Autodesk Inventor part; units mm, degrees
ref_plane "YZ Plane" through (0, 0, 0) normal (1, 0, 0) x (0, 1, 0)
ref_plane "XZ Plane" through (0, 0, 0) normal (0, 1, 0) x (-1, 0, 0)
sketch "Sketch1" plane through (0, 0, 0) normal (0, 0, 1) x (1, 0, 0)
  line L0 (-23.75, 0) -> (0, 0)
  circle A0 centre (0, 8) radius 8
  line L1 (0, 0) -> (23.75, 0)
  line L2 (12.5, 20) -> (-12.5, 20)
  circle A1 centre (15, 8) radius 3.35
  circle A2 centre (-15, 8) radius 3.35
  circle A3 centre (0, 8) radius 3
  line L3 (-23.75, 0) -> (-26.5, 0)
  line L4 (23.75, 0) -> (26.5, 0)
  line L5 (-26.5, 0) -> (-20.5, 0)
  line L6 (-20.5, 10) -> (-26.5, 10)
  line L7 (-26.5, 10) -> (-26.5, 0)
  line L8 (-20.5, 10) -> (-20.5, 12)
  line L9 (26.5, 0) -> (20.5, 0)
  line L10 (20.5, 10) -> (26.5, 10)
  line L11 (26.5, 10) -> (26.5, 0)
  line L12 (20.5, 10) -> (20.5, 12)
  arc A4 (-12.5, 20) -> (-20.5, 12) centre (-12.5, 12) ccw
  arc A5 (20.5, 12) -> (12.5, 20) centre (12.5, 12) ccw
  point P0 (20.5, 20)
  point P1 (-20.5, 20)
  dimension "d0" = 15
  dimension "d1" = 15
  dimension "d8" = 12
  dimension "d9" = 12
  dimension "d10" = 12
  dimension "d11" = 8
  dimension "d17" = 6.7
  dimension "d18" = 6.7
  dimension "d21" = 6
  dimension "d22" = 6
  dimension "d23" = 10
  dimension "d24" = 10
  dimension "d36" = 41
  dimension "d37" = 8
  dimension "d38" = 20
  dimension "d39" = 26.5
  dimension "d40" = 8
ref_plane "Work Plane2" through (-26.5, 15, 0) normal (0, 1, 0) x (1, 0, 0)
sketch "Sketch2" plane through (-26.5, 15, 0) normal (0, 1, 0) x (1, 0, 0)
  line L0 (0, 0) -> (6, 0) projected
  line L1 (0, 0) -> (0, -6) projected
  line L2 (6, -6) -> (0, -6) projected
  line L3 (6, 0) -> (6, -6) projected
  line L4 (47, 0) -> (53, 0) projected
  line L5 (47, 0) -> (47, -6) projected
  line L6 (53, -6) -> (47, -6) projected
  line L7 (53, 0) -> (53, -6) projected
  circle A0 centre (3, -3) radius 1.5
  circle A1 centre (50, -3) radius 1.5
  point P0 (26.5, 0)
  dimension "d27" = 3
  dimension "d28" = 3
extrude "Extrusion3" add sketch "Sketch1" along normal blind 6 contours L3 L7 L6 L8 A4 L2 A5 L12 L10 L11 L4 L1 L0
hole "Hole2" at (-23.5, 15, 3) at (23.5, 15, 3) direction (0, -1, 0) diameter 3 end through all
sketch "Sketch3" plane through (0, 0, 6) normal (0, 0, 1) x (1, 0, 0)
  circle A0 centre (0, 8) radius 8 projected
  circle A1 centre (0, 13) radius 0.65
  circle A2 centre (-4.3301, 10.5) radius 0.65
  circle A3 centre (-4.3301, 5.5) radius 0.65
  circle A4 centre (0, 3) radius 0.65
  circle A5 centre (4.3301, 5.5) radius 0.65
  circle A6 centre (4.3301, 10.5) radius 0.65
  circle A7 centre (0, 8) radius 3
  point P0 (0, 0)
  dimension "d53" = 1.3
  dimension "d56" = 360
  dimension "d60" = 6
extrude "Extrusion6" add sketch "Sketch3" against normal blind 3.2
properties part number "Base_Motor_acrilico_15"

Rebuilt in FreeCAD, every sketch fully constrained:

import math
import FreeCAD as App
import Part
import Sketcher

V = App.Vector

doc = App.newDocument("Part")
body = doc.addObject("PartDesign::Body", "Body")

# Sketch on XY plane
sketch1 = body.newObject("Sketcher::SketchObject", "Sketch")
sketch1.AttachmentSupport = (doc.getObject("XY_Plane"), [""])
sketch1.MapMode = "FlatFace"
sketch1.addGeometry([
    Part.LineSegment(V(-26.5, 0, 0), V(0, 0, 0)),  # 0
    Part.LineSegment(V(0, 0, 0), V(26.5, 0, 0)),  # 1
    Part.LineSegment(V(26.5, 0, 0), V(26.5, 10, 0)),  # 2
    Part.LineSegment(V(26.5, 10, 0), V(20.5, 10, 0)),  # 3
    Part.LineSegment(V(20.5, 10, 0), V(20.5, 12, 0)),  # 4
    Part.ArcOfCircle(Part.Circle(V(12.5, 12, 0), V(0, 0, 1), 8), math.radians(0), math.radians(90)),  # 5
    Part.LineSegment(V(12.5, 20, 0), V(-12.5, 20, 0)),  # 6
    Part.ArcOfCircle(Part.Circle(V(-12.5, 12, 0), V(0, 0, 1), 8), math.radians(90), math.radians(180)),  # 7
    Part.LineSegment(V(-20.5, 12, 0), V(-20.5, 10, 0)),  # 8
    Part.LineSegment(V(-20.5, 10, 0), V(-26.5, 10, 0)),  # 9
    Part.LineSegment(V(-26.5, 10, 0), V(-26.5, 0, 0)),  # 10
    Part.Circle(V(-15, 8, 0), V(0, 0, 1), 3.4),  # 11
    Part.Circle(V(0, 8, 0), V(0, 0, 1), 8),  # 12
    Part.Circle(V(15, 8, 0), V(0, 0, 1), 3.4),  # 13
], False)
sketch1.addConstraint([
    Sketcher.Constraint("Coincident", 0, 2, 1, 1),
    Sketcher.Constraint("Coincident", 1, 2, 2, 1),
    Sketcher.Constraint("Coincident", 2, 2, 3, 1),
    Sketcher.Constraint("Coincident", 3, 2, 4, 1),
    Sketcher.Constraint("Tangent", 4, 2, 5, 1),
    Sketcher.Constraint("Tangent", 5, 2, 6, 1),
    Sketcher.Constraint("Tangent", 6, 2, 7, 1),
    Sketcher.Constraint("Tangent", 7, 2, 8, 1),
    Sketcher.Constraint("Coincident", 8, 2, 9, 1),
    Sketcher.Constraint("Coincident", 9, 2, 10, 1),
    Sketcher.Constraint("Coincident", 10, 2, 0, 1),
    Sketcher.Constraint("Horizontal", 0),
    Sketcher.Constraint("Horizontal", 1),
    Sketcher.Constraint("Vertical", 2),
    Sketcher.Constraint("Horizontal", 3),
    Sketcher.Constraint("Vertical", 4),
    Sketcher.Constraint("Horizontal", 6),
    Sketcher.Constraint("Vertical", 8),
    Sketcher.Constraint("Horizontal", 9),
    Sketcher.Constraint("Vertical", 10),
    Sketcher.Constraint("Coincident", 0, 2, -1, 1),
    Sketcher.Constraint("Equal", 5, 7),
    Sketcher.Constraint("Equal", 7, 12),
    Sketcher.Constraint("Equal", 11, 13),
    Sketcher.Constraint("Symmetric", 11, 3, 13, 3, -2),
    Sketcher.Constraint("Symmetric", 3, 2, 8, 2, -2),
    Sketcher.Constraint("PointOnObject", 12, 3, -2),
    Sketcher.Constraint("Horizontal", 11, 3, 12, 3),
    Sketcher.Constraint("Equal", 0, 1),
    Sketcher.Constraint("Diameter", 12, 16.0),
    Sketcher.Constraint("Diameter", 11, 6.7),
    Sketcher.Constraint("DistanceX", 3, 2, 3, 1, 6.0),
    Sketcher.Constraint("DistanceY", 2, 1, 2, 2, 10.0),
    Sketcher.Constraint("DistanceX", 0, 1, 0, 2, 26.5),
    Sketcher.Constraint("DistanceY", -1, 1, 5, 3, 12.0),
    Sketcher.Constraint("DistanceX", 11, 3, -1, 1, 15.0),
    Sketcher.Constraint("DistanceY", -1, 1, 11, 3, 8.0),
])
pad1 = body.newObject("PartDesign::Pad", "Pad")
pad1.Profile = sketch1
pad1.Length = 6

# Sketch on XZ plane
sketch2 = body.newObject("Sketcher::SketchObject", "Sketch001")
sketch2.AttachmentSupport = (doc.getObject("XZ_Plane"), [""])
sketch2.MapMode = "FlatFace"
sketch2.AttachmentOffset = App.Placement(V(0, 0, -15), App.Rotation())
sketch2.addGeometry([
    Part.Circle(V(-23.5, 3, 0), V(0, 0, 1), 1.5),
    Part.Circle(V(23.5, 3, 0), V(0, 0, 1), 1.5),
], False)
sketch2.addConstraint([
    Sketcher.Constraint("Equal", 0, 1),
    Sketcher.Constraint("Symmetric", 0, 3, 1, 3, -2),
    Sketcher.Constraint("Diameter", 0, 3.0),
    Sketcher.Constraint("DistanceY", -1, 1, 0, 3, 3.0),
    Sketcher.Constraint("DistanceX", 0, 3, 1, 3, 47.0),
])
doc.recompute()
hole = body.newObject("PartDesign::Hole", "Hole")
hole.Profile = sketch2
hole.ThreadType = "None"
hole.Diameter = 3
hole.DepthType = "ThroughAll"
hole.Reversed = True

# Sketch on XY plane
sketch3 = body.newObject("Sketcher::SketchObject", "Sketch002")
sketch3.AttachmentSupport = (doc.getObject("XY_Plane"), [""])
sketch3.MapMode = "FlatFace"
sketch3.AttachmentOffset = App.Placement(V(0, 0, 6), App.Rotation())
sketch3.addGeometry([
    Part.Circle(V(0, 8, 0), V(0, 0, 1), 8),  # 0
    Part.Circle(V(-4.3, 5.5, 0), V(0, 0, 1), 0.7),  # 1
    Part.Circle(V(0, 3, 0), V(0, 0, 1), 0.7),  # 2
    Part.Circle(V(4.3, 5.5, 0), V(0, 0, 1), 0.7),  # 3
    Part.Circle(V(-4.3, 10.5, 0), V(0, 0, 1), 0.7),  # 4
    Part.Circle(V(0, 8, 0), V(0, 0, 1), 3),  # 5
    Part.Circle(V(4.3, 10.5, 0), V(0, 0, 1), 0.7),  # 6
    Part.Circle(V(0, 13, 0), V(0, 0, 1), 0.7),  # 7
], False)
sketch3.addConstraint([
    Sketcher.Constraint("Coincident", 5, 3, 0, 3),
    Sketcher.Constraint("Equal", 1, 2),
    Sketcher.Constraint("Equal", 2, 3),
    Sketcher.Constraint("Equal", 3, 4),
    Sketcher.Constraint("Equal", 4, 6),
    Sketcher.Constraint("Equal", 6, 7),
    Sketcher.Constraint("Symmetric", 1, 3, 3, 3, -2),
    Sketcher.Constraint("Symmetric", 4, 3, 6, 3, -2),
    Sketcher.Constraint("PointOnObject", 0, 3, -2),
    Sketcher.Constraint("PointOnObject", 2, 3, -2),
    Sketcher.Constraint("PointOnObject", 7, 3, -2),
    Sketcher.Constraint("Vertical", 1, 3, 4, 3),
    Sketcher.Constraint("Diameter", 5, 6.0),
    Sketcher.Constraint("Diameter", 1, 1.3),
    Sketcher.Constraint("Diameter", 0, 16.0),
    Sketcher.Constraint("DistanceY", -1, 1, 0, 3, 8.0),
    Sketcher.Constraint("DistanceY", -1, 1, 2, 3, 3.0),
    Sketcher.Constraint("DistanceY", -1, 1, 7, 3, 13.0),
    Sketcher.Constraint("DistanceY", 1, 3, 4, 3, 5.0),
    Sketcher.Constraint("DistanceY", -1, 1, 1, 3, 5.5),
    Sketcher.Constraint("DistanceX", 1, 3, -1, 1, 4.33),
])
pad2 = body.newObject("PartDesign::Pad", "Pad001")
pad2.Profile = sketch3
pad2.Length = 3.2
pad2.Reversed = True

doc.recompute()
